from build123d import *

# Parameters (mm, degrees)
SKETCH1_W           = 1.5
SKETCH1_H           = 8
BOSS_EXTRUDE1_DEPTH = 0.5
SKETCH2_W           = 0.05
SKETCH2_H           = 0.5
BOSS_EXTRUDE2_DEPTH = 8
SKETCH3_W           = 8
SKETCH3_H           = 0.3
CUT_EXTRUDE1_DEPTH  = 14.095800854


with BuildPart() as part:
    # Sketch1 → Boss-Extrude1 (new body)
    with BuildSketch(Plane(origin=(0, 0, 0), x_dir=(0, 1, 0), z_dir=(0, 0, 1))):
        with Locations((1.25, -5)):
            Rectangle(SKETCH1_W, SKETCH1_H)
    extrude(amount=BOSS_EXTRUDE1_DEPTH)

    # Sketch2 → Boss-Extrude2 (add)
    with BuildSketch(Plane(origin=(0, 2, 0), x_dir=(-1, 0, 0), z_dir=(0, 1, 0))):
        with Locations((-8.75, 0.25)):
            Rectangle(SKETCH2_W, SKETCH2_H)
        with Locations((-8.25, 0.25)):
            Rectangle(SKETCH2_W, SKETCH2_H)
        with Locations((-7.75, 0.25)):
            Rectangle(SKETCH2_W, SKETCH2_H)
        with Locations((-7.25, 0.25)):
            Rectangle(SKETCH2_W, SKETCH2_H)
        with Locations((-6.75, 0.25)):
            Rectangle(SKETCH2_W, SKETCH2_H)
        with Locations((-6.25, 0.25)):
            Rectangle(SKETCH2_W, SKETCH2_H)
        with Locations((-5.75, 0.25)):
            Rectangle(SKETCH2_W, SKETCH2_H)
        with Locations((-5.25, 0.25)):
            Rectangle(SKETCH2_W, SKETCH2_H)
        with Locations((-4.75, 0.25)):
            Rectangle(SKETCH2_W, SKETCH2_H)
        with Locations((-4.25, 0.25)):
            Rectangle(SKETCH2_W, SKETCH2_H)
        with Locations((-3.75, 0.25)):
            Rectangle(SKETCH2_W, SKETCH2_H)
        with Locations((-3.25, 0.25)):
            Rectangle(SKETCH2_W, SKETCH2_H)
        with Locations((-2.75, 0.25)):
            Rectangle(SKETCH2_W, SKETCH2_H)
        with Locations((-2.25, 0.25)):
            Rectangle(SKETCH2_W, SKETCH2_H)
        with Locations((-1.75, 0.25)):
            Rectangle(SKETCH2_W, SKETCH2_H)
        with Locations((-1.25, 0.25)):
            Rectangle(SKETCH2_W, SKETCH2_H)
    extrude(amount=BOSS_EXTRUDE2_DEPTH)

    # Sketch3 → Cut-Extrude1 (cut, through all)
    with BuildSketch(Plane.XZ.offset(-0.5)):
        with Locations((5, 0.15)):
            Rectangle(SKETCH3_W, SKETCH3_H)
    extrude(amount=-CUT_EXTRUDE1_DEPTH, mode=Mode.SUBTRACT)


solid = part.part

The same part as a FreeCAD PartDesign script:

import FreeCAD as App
import Part
import Sketcher
Q = App.Units.Quantity

doc = App.newDocument("Part")
params = doc.addObject("Spreadsheet::Sheet", "Params")
for row, (alias, value) in enumerate([
    ("sketch1_width", "8 mm"),
    ("sketch1_height", "1.5 mm"),
    ("pad1_length", "0.5 mm"),
    ("sketch2_height", "0.5 mm"),
    ("sketch2_width", "0.05 mm"),
    ("pad2_length", "8 mm"),
    ("sketch3_width", "8 mm"),
    ("sketch3_height", "0.3 mm"),
], start=1):
    params.set(f"A{row}", alias)
    params.set(f"B{row}", "=" + value)
    params.setAlias(f"B{row}", alias)

body = doc.addObject("PartDesign::Body", "Body")

# Sketch on XY plane
sketch1 = body.newObject("Sketcher::SketchObject", "Sketch")
sketch1.AttachmentSupport = (doc.getObject("XY_Plane"), [""])
sketch1.MapMode = "FlatFace"
sketch1.addGeometry([
    Part.LineSegment(App.Vector(1, 0.5, 0), App.Vector(9, 0.5, 0)),
    Part.LineSegment(App.Vector(9, 0.5, 0), App.Vector(9, 2, 0)),
    Part.LineSegment(App.Vector(9, 2, 0), App.Vector(1, 2, 0)),
    Part.LineSegment(App.Vector(1, 2, 0), App.Vector(1, 0.5, 0)),
], False)
sketch1.addConstraint([
    Sketcher.Constraint("Coincident", 0, 2, 1, 1),
    Sketcher.Constraint("Coincident", 1, 2, 2, 1),
    Sketcher.Constraint("Coincident", 2, 2, 3, 1),
    Sketcher.Constraint("Coincident", 3, 2, 0, 1),
    Sketcher.Constraint("Horizontal", 0),
    Sketcher.Constraint("Vertical", 1),
    Sketcher.Constraint("Horizontal", 2),
    Sketcher.Constraint("Vertical", 3),
    Sketcher.Constraint("DistanceX", 0, 1, 0, 2, Q("8 mm")),
    Sketcher.Constraint("DistanceY", 1, 1, 1, 2, Q("1.5 mm")),
    Sketcher.Constraint("DistanceX", -1, 1, 0, 2, Q("9 mm")),
    Sketcher.Constraint("DistanceY", -1, 1, 1, 2, Q("2 mm")),
])
sketch1.setExpression("Constraints[8]", "Params.sketch1_width")
sketch1.setExpression("Constraints[9]", "Params.sketch1_height")
pad1 = body.newObject("PartDesign::Pad", "Pad")
pad1.Profile = sketch1
pad1.setExpression("Length", "Params.pad1_length")

# Sketch on XZ plane
sketch2 = body.newObject("Sketcher::SketchObject", "Sketch001")
sketch2.AttachmentSupport = (doc.getObject("XZ_Plane"), [""])
sketch2.MapMode = "FlatFace"
sketch2.AttachmentOffset = App.Placement(App.Vector(0, 0, -2), App.Rotation())
sketch2.addGeometry([
    Part.LineSegment(App.Vector(8.775, 0.5, 0), App.Vector(8.775, 0, 0)),  # 0
    Part.LineSegment(App.Vector(8.775, 0, 0), App.Vector(8.725, 0, 0)),  # 1
    Part.LineSegment(App.Vector(8.725, 0, 0), App.Vector(8.725, 0.5, 0)),  # 2
    Part.LineSegment(App.Vector(8.725, 0.5, 0), App.Vector(8.775, 0.5, 0)),  # 3
    Part.LineSegment(App.Vector(8.275, 0.5, 0), App.Vector(8.275, 0, 0)),  # 4
    Part.LineSegment(App.Vector(8.275, 0, 0), App.Vector(8.225, 0, 0)),  # 5
    Part.LineSegment(App.Vector(8.225, 0, 0), App.Vector(8.225, 0.5, 0)),  # 6
    Part.LineSegment(App.Vector(8.225, 0.5, 0), App.Vector(8.275, 0.5, 0)),  # 7
    Part.LineSegment(App.Vector(7.775, 0.5, 0), App.Vector(7.775, 0, 0)),  # 8
    Part.LineSegment(App.Vector(7.775, 0, 0), App.Vector(7.725, 0, 0)),  # 9
    Part.LineSegment(App.Vector(7.725, 0, 0), App.Vector(7.725, 0.5, 0)),  # 10
    Part.LineSegment(App.Vector(7.725, 0.5, 0), App.Vector(7.775, 0.5, 0)),  # 11
    Part.LineSegment(App.Vector(7.275, 0.5, 0), App.Vector(7.275, 0, 0)),  # 12
    Part.LineSegment(App.Vector(7.275, 0, 0), App.Vector(7.225, 0, 0)),  # 13
    Part.LineSegment(App.Vector(7.225, 0, 0), App.Vector(7.225, 0.5, 0)),  # 14
    Part.LineSegment(App.Vector(7.225, 0.5, 0), App.Vector(7.275, 0.5, 0)),  # 15
    Part.LineSegment(App.Vector(6.775, 0.5, 0), App.Vector(6.775, 0, 0)),  # 16
    Part.LineSegment(App.Vector(6.775, 0, 0), App.Vector(6.725, 0, 0)),  # 17
    Part.LineSegment(App.Vector(6.725, 0, 0), App.Vector(6.725, 0.5, 0)),  # 18
    Part.LineSegment(App.Vector(6.725, 0.5, 0), App.Vector(6.775, 0.5, 0)),  # 19
    Part.LineSegment(App.Vector(6.275, 0.5, 0), App.Vector(6.275, 0, 0)),  # 20
    Part.LineSegment(App.Vector(6.275, 0, 0), App.Vector(6.225, 0, 0)),  # 21
    Part.LineSegment(App.Vector(6.225, 0, 0), App.Vector(6.225, 0.5, 0)),  # 22
    Part.LineSegment(App.Vector(6.225, 0.5, 0), App.Vector(6.275, 0.5, 0)),  # 23
    Part.LineSegment(App.Vector(5.775, 0.5, 0), App.Vector(5.775, 0, 0)),  # 24
    Part.LineSegment(App.Vector(5.775, 0, 0), App.Vector(5.725, 0, 0)),  # 25
    Part.LineSegment(App.Vector(5.725, 0, 0), App.Vector(5.725, 0.5, 0)),  # 26
    Part.LineSegment(App.Vector(5.725, 0.5, 0), App.Vector(5.775, 0.5, 0)),  # 27
    Part.LineSegment(App.Vector(5.275, 0.5, 0), App.Vector(5.275, 0, 0)),  # 28
    Part.LineSegment(App.Vector(5.275, 0, 0), App.Vector(5.225, 0, 0)),  # 29
    Part.LineSegment(App.Vector(5.225, 0, 0), App.Vector(5.225, 0.5, 0)),  # 30
    Part.LineSegment(App.Vector(5.225, 0.5, 0), App.Vector(5.275, 0.5, 0)),  # 31
    Part.LineSegment(App.Vector(4.775, 0.5, 0), App.Vector(4.775, 0, 0)),  # 32
    Part.LineSegment(App.Vector(4.775, 0, 0), App.Vector(4.725, 0, 0)),  # 33
    Part.LineSegment(App.Vector(4.725, 0, 0), App.Vector(4.725, 0.5, 0)),  # 34
    Part.LineSegment(App.Vector(4.725, 0.5, 0), App.Vector(4.775, 0.5, 0)),  # 35
    Part.LineSegment(App.Vector(4.275, 0.5, 0), App.Vector(4.275, 0, 0)),  # 36
    Part.LineSegment(App.Vector(4.275, 0, 0), App.Vector(4.225, 0, 0)),  # 37
    Part.LineSegment(App.Vector(4.225, 0, 0), App.Vector(4.225, 0.5, 0)),  # 38
    Part.LineSegment(App.Vector(4.225, 0.5, 0), App.Vector(4.275, 0.5, 0)),  # 39
    Part.LineSegment(App.Vector(3.775, 0.5, 0), App.Vector(3.775, 0, 0)),  # 40
    Part.LineSegment(App.Vector(3.775, 0, 0), App.Vector(3.725, 0, 0)),  # 41
    Part.LineSegment(App.Vector(3.725, 0, 0), App.Vector(3.725, 0.5, 0)),  # 42
    Part.LineSegment(App.Vector(3.725, 0.5, 0), App.Vector(3.775, 0.5, 0)),  # 43
    Part.LineSegment(App.Vector(3.275, 0.5, 0), App.Vector(3.275, 0, 0)),  # 44
    Part.LineSegment(App.Vector(3.275, 0, 0), App.Vector(3.225, 0, 0)),  # 45
    Part.LineSegment(App.Vector(3.225, 0, 0), App.Vector(3.225, 0.5, 0)),  # 46
    Part.LineSegment(App.Vector(3.225, 0.5, 0), App.Vector(3.275, 0.5, 0)),  # 47
    Part.LineSegment(App.Vector(2.775, 0.5, 0), App.Vector(2.775, 0, 0)),  # 48
    Part.LineSegment(App.Vector(2.775, 0, 0), App.Vector(2.725, 0, 0)),  # 49
    Part.LineSegment(App.Vector(2.725, 0, 0), App.Vector(2.725, 0.5, 0)),  # 50
    Part.LineSegment(App.Vector(2.725, 0.5, 0), App.Vector(2.775, 0.5, 0)),  # 51
    Part.LineSegment(App.Vector(2.275, 0.5, 0), App.Vector(2.275, 0, 0)),  # 52
    Part.LineSegment(App.Vector(2.275, 0, 0), App.Vector(2.225, 0, 0)),  # 53
    Part.LineSegment(App.Vector(2.225, 0, 0), App.Vector(2.225, 0.5, 0)),  # 54
    Part.LineSegment(App.Vector(2.225, 0.5, 0), App.Vector(2.275, 0.5, 0)),  # 55
    Part.LineSegment(App.Vector(1.775, 0.5, 0), App.Vector(1.775, 0, 0)),  # 56
    Part.LineSegment(App.Vector(1.775, 0, 0), App.Vector(1.725, 0, 0)),  # 57
    Part.LineSegment(App.Vector(1.725, 0, 0), App.Vector(1.725, 0.5, 0)),  # 58
    Part.LineSegment(App.Vector(1.725, 0.5, 0), App.Vector(1.775, 0.5, 0)),  # 59
    Part.LineSegment(App.Vector(1.275, 0.5, 0), App.Vector(1.275, 0, 0)),  # 60
    Part.LineSegment(App.Vector(1.275, 0, 0), App.Vector(1.225, 0, 0)),  # 61
    Part.LineSegment(App.Vector(1.225, 0, 0), App.Vector(1.225, 0.5, 0)),  # 62
    Part.LineSegment(App.Vector(1.225, 0.5, 0), App.Vector(1.275, 0.5, 0)),  # 63
], False)
sketch2.addConstraint([
    Sketcher.Constraint("Coincident", 0, 2, 1, 1),
    Sketcher.Constraint("Coincident", 1, 2, 2, 1),
    Sketcher.Constraint("Coincident", 2, 2, 3, 1),
    Sketcher.Constraint("Coincident", 3, 2, 0, 1),
    Sketcher.Constraint("Coincident", 4, 2, 5, 1),
    Sketcher.Constraint("Coincident", 5, 2, 6, 1),
    Sketcher.Constraint("Coincident", 6, 2, 7, 1),
    Sketcher.Constraint("Coincident", 7, 2, 4, 1),
    Sketcher.Constraint("Coincident", 8, 2, 9, 1),
    Sketcher.Constraint("Coincident", 9, 2, 10, 1),
    Sketcher.Constraint("Coincident", 10, 2, 11, 1),
    Sketcher.Constraint("Coincident", 11, 2, 8, 1),
    Sketcher.Constraint("Coincident", 12, 2, 13, 1),
    Sketcher.Constraint("Coincident", 13, 2, 14, 1),
    Sketcher.Constraint("Coincident", 14, 2, 15, 1),
    Sketcher.Constraint("Coincident", 15, 2, 12, 1),
    Sketcher.Constraint("Coincident", 16, 2, 17, 1),
    Sketcher.Constraint("Coincident", 17, 2, 18, 1),
    Sketcher.Constraint("Coincident", 18, 2, 19, 1),
    Sketcher.Constraint("Coincident", 19, 2, 16, 1),
    Sketcher.Constraint("Coincident", 20, 2, 21, 1),
    Sketcher.Constraint("Coincident", 21, 2, 22, 1),
    Sketcher.Constraint("Coincident", 22, 2, 23, 1),
    Sketcher.Constraint("Coincident", 23, 2, 20, 1),
    Sketcher.Constraint("Coincident", 24, 2, 25, 1),
    Sketcher.Constraint("Coincident", 25, 2, 26, 1),
    Sketcher.Constraint("Coincident", 26, 2, 27, 1),
    Sketcher.Constraint("Coincident", 27, 2, 24, 1),
    Sketcher.Constraint("Coincident", 28, 2, 29, 1),
    Sketcher.Constraint("Coincident", 29, 2, 30, 1),
    Sketcher.Constraint("Coincident", 30, 2, 31, 1),
    Sketcher.Constraint("Coincident", 31, 2, 28, 1),
    Sketcher.Constraint("Coincident", 32, 2, 33, 1),
    Sketcher.Constraint("Coincident", 33, 2, 34, 1),
    Sketcher.Constraint("Coincident", 34, 2, 35, 1),
    Sketcher.Constraint("Coincident", 35, 2, 32, 1),
    Sketcher.Constraint("Coincident", 36, 2, 37, 1),
    Sketcher.Constraint("Coincident", 37, 2, 38, 1),
    Sketcher.Constraint("Coincident", 38, 2, 39, 1),
    Sketcher.Constraint("Coincident", 39, 2, 36, 1),
    Sketcher.Constraint("Coincident", 40, 2, 41, 1),
    Sketcher.Constraint("Coincident", 41, 2, 42, 1),
    Sketcher.Constraint("Coincident", 42, 2, 43, 1),
    Sketcher.Constraint("Coincident", 43, 2, 40, 1),
    Sketcher.Constraint("Coincident", 44, 2, 45, 1),
    Sketcher.Constraint("Coincident", 45, 2, 46, 1),
    Sketcher.Constraint("Coincident", 46, 2, 47, 1),
    Sketcher.Constraint("Coincident", 47, 2, 44, 1),
    Sketcher.Constraint("Coincident", 48, 2, 49, 1),
    Sketcher.Constraint("Coincident", 49, 2, 50, 1),
    Sketcher.Constraint("Coincident", 50, 2, 51, 1),
    Sketcher.Constraint("Coincident", 51, 2, 48, 1),
    Sketcher.Constraint("Coincident", 52, 2, 53, 1),
    Sketcher.Constraint("Coincident", 53, 2, 54, 1),
    Sketcher.Constraint("Coincident", 54, 2, 55, 1),
    Sketcher.Constraint("Coincident", 55, 2, 52, 1),
    Sketcher.Constraint("Coincident", 56, 2, 57, 1),
    Sketcher.Constraint("Coincident", 57, 2, 58, 1),
    Sketcher.Constraint("Coincident", 58, 2, 59, 1),
    Sketcher.Constraint("Coincident", 59, 2, 56, 1),
    Sketcher.Constraint("Coincident", 60, 2, 61, 1),
    Sketcher.Constraint("Coincident", 61, 2, 62, 1),
    Sketcher.Constraint("Coincident", 62, 2, 63, 1),
    Sketcher.Constraint("Coincident", 63, 2, 60, 1),
    Sketcher.Constraint("Vertical", 0),
    Sketcher.Constraint("Horizontal", 1),
    Sketcher.Constraint("Vertical", 2),
    Sketcher.Constraint("Horizontal", 3),
    Sketcher.Constraint("Vertical", 4),
    Sketcher.Constraint("Horizontal", 5),
    Sketcher.Constraint("Vertical", 6),
    Sketcher.Constraint("Horizontal", 7),
    Sketcher.Constraint("Vertical", 8),
    Sketcher.Constraint("Horizontal", 9),
    Sketcher.Constraint("Vertical", 10),
    Sketcher.Constraint("Horizontal", 11),
    Sketcher.Constraint("Vertical", 12),
    Sketcher.Constraint("Horizontal", 13),
    Sketcher.Constraint("Vertical", 14),
    Sketcher.Constraint("Horizontal", 15),
    Sketcher.Constraint("Vertical", 16),
    Sketcher.Constraint("Horizontal", 17),
    Sketcher.Constraint("Vertical", 18),
    Sketcher.Constraint("Horizontal", 19),
    Sketcher.Constraint("Vertical", 20),
    Sketcher.Constraint("Horizontal", 21),
    Sketcher.Constraint("Vertical", 22),
    Sketcher.Constraint("Horizontal", 23),
    Sketcher.Constraint("Vertical", 24),
    Sketcher.Constraint("Horizontal", 25),
    Sketcher.Constraint("Vertical", 26),
    Sketcher.Constraint("Horizontal", 27),
    Sketcher.Constraint("Vertical", 28),
    Sketcher.Constraint("Horizontal", 29),
    Sketcher.Constraint("Vertical", 30),
    Sketcher.Constraint("Horizontal", 31),
    Sketcher.Constraint("Vertical", 32),
    Sketcher.Constraint("Horizontal", 33),
    Sketcher.Constraint("Vertical", 34),
    Sketcher.Constraint("Horizontal", 35),
    Sketcher.Constraint("Vertical", 36),
    Sketcher.Constraint("Horizontal", 37),
    Sketcher.Constraint("Vertical", 38),
    Sketcher.Constraint("Horizontal", 39),
    Sketcher.Constraint("Vertical", 40),
    Sketcher.Constraint("Horizontal", 41),
    Sketcher.Constraint("Vertical", 42),
    Sketcher.Constraint("Horizontal", 43),
    Sketcher.Constraint("Vertical", 44),
    Sketcher.Constraint("Horizontal", 45),
    Sketcher.Constraint("Vertical", 46),
    Sketcher.Constraint("Horizontal", 47),
    Sketcher.Constraint("Vertical", 48),
    Sketcher.Constraint("Horizontal", 49),
    Sketcher.Constraint("Vertical", 50),
    Sketcher.Constraint("Horizontal", 51),
    Sketcher.Constraint("Vertical", 52),
    Sketcher.Constraint("Horizontal", 53),
    Sketcher.Constraint("Vertical", 54),
    Sketcher.Constraint("Horizontal", 55),
    Sketcher.Constraint("Vertical", 56),
    Sketcher.Constraint("Horizontal", 57),
    Sketcher.Constraint("Vertical", 58),
    Sketcher.Constraint("Horizontal", 59),
    Sketcher.Constraint("Vertical", 60),
    Sketcher.Constraint("Horizontal", 61),
    Sketcher.Constraint("Vertical", 62),
    Sketcher.Constraint("Horizontal", 63),
    Sketcher.Constraint("PointOnObject", 0, 2, -1),
    Sketcher.Constraint("PointOnObject", 4, 2, -1),
    Sketcher.Constraint("PointOnObject", 8, 2, -1),
    Sketcher.Constraint("PointOnObject", 12, 2, -1),
    Sketcher.Constraint("PointOnObject", 16, 2, -1),
    Sketcher.Constraint("PointOnObject", 20, 2, -1),
    Sketcher.Constraint("PointOnObject", 24, 2, -1),
    Sketcher.Constraint("PointOnObject", 28, 2, -1),
    Sketcher.Constraint("PointOnObject", 32, 2, -1),
    Sketcher.Constraint("PointOnObject", 36, 2, -1),
    Sketcher.Constraint("PointOnObject", 40, 2, -1),
    Sketcher.Constraint("PointOnObject", 44, 2, -1),
    Sketcher.Constraint("PointOnObject", 48, 2, -1),
    Sketcher.Constraint("PointOnObject", 52, 2, -1),
    Sketcher.Constraint("PointOnObject", 56, 2, -1),
    Sketcher.Constraint("PointOnObject", 60, 2, -1),
    Sketcher.Constraint("Horizontal", 3, 2, 6, 2),
    Sketcher.Constraint("Horizontal", 7, 2, 10, 2),
    Sketcher.Constraint("Horizontal", 11, 2, 14, 2),
    Sketcher.Constraint("Horizontal", 15, 2, 18, 2),
    Sketcher.Constraint("Horizontal", 19, 2, 22, 2),
    Sketcher.Constraint("Horizontal", 23, 2, 26, 2),
    Sketcher.Constraint("Horizontal", 27, 2, 30, 2),
    Sketcher.Constraint("Horizontal", 31, 2, 34, 2),
    Sketcher.Constraint("Horizontal", 35, 2, 38, 2),
    Sketcher.Constraint("Horizontal", 39, 2, 42, 2),
    Sketcher.Constraint("Horizontal", 43, 2, 46, 2),
    Sketcher.Constraint("Horizontal", 47, 2, 50, 2),
    Sketcher.Constraint("Horizontal", 51, 2, 54, 2),
    Sketcher.Constraint("Horizontal", 55, 2, 58, 2),
    Sketcher.Constraint("Horizontal", 59, 2, 62, 2),
    Sketcher.Constraint("Equal", 3, 5),
    Sketcher.Constraint("Equal", 7, 9),
    Sketcher.Constraint("Equal", 11, 13),
    Sketcher.Constraint("Equal", 15, 17),
    Sketcher.Constraint("Equal", 19, 21),
    Sketcher.Constraint("Equal", 23, 25),
    Sketcher.Constraint("Equal", 27, 29),
    Sketcher.Constraint("Equal", 31, 33),
    Sketcher.Constraint("Equal", 35, 37),
    Sketcher.Constraint("Equal", 39, 41),
    Sketcher.Constraint("Equal", 43, 45),
    Sketcher.Constraint("Equal", 47, 49),
    Sketcher.Constraint("Equal", 51, 53),
    Sketcher.Constraint("Equal", 55, 57),
    Sketcher.Constraint("Equal", 59, 61),
    Sketcher.Constraint("DistanceY", 0, 2, 0, 1, Q("0.5 mm")),
    Sketcher.Constraint("DistanceX", 1, 2, 1, 1, Q("0.05 mm")),
    Sketcher.Constraint("DistanceX", -1, 1, 0, 2, Q("8.775 mm")),
    Sketcher.Constraint("DistanceX", -1, 1, 4, 2, Q("8.275 mm")),
    Sketcher.Constraint("DistanceX", -1, 1, 8, 2, Q("7.775 mm")),
    Sketcher.Constraint("DistanceX", -1, 1, 12, 2, Q("7.275 mm")),
    Sketcher.Constraint("DistanceX", -1, 1, 16, 2, Q("6.775 mm")),
    Sketcher.Constraint("DistanceX", -1, 1, 20, 2, Q("6.275 mm")),
    Sketcher.Constraint("DistanceX", -1, 1, 24, 2, Q("5.775 mm")),
    Sketcher.Constraint("DistanceX", -1, 1, 28, 2, Q("5.275 mm")),
    Sketcher.Constraint("DistanceX", -1, 1, 32, 2, Q("4.775 mm")),
    Sketcher.Constraint("DistanceX", -1, 1, 36, 2, Q("4.275 mm")),
    Sketcher.Constraint("DistanceX", -1, 1, 40, 2, Q("3.775 mm")),
    Sketcher.Constraint("DistanceX", -1, 1, 44, 2, Q("3.275 mm")),
    Sketcher.Constraint("DistanceX", -1, 1, 48, 2, Q("2.775 mm")),
    Sketcher.Constraint("DistanceX", -1, 1, 52, 2, Q("2.275 mm")),
    Sketcher.Constraint("DistanceX", -1, 1, 56, 2, Q("1.775 mm")),
    Sketcher.Constraint("DistanceX", -1, 1, 60, 2, Q("1.275 mm")),
])
sketch2.setExpression("Constraints[174]", "Params.sketch2_height")
sketch2.setExpression("Constraints[175]", "Params.sketch2_width")
pad2 = body.newObject("PartDesign::Pad", "Pad001")
pad2.Profile = sketch2
pad2.setExpression("Length", "Params.pad2_length")
pad2.Reversed = True

# Sketch on XZ plane
sketch3 = body.newObject("Sketcher::SketchObject", "Sketch002")
sketch3.AttachmentSupport = (doc.getObject("XZ_Plane"), [""])
sketch3.MapMode = "FlatFace"
sketch3.AttachmentOffset = App.Placement(App.Vector(0, 0, -0.5), App.Rotation())
sketch3.addGeometry([
    Part.LineSegment(App.Vector(1, 0.3, 0), App.Vector(1, 0, 0)),
    Part.LineSegment(App.Vector(1, 0, 0), App.Vector(9, 0, 0)),
    Part.LineSegment(App.Vector(9, 0, 0), App.Vector(9, 0.3, 0)),
    Part.LineSegment(App.Vector(9, 0.3, 0), App.Vector(1, 0.3, 0)),
], False)
sketch3.addConstraint([
    Sketcher.Constraint("Coincident", 0, 2, 1, 1),
    Sketcher.Constraint("Coincident", 1, 2, 2, 1),
    Sketcher.Constraint("Coincident", 2, 2, 3, 1),
    Sketcher.Constraint("Coincident", 3, 2, 0, 1),
    Sketcher.Constraint("Vertical", 0),
    Sketcher.Constraint("Horizontal", 1),
    Sketcher.Constraint("Vertical", 2),
    Sketcher.Constraint("Horizontal", 3),
    Sketcher.Constraint("PointOnObject", 0, 2, -1),
    Sketcher.Constraint("DistanceX", 1, 1, 1, 2, Q("8 mm")),
    Sketcher.Constraint("DistanceY", 0, 2, 0, 1, Q("0.3 mm")),
    Sketcher.Constraint("DistanceX", -1, 1, 0, 2, Q("1 mm")),
])
sketch3.setExpression("Constraints[9]", "Params.sketch3_width")
sketch3.setExpression("Constraints[10]", "Params.sketch3_height")
pocket1 = body.newObject("PartDesign::Pocket", "Pocket")
pocket1.Profile = sketch3
pocket1.Type = "ThroughAll"

doc.recompute()
